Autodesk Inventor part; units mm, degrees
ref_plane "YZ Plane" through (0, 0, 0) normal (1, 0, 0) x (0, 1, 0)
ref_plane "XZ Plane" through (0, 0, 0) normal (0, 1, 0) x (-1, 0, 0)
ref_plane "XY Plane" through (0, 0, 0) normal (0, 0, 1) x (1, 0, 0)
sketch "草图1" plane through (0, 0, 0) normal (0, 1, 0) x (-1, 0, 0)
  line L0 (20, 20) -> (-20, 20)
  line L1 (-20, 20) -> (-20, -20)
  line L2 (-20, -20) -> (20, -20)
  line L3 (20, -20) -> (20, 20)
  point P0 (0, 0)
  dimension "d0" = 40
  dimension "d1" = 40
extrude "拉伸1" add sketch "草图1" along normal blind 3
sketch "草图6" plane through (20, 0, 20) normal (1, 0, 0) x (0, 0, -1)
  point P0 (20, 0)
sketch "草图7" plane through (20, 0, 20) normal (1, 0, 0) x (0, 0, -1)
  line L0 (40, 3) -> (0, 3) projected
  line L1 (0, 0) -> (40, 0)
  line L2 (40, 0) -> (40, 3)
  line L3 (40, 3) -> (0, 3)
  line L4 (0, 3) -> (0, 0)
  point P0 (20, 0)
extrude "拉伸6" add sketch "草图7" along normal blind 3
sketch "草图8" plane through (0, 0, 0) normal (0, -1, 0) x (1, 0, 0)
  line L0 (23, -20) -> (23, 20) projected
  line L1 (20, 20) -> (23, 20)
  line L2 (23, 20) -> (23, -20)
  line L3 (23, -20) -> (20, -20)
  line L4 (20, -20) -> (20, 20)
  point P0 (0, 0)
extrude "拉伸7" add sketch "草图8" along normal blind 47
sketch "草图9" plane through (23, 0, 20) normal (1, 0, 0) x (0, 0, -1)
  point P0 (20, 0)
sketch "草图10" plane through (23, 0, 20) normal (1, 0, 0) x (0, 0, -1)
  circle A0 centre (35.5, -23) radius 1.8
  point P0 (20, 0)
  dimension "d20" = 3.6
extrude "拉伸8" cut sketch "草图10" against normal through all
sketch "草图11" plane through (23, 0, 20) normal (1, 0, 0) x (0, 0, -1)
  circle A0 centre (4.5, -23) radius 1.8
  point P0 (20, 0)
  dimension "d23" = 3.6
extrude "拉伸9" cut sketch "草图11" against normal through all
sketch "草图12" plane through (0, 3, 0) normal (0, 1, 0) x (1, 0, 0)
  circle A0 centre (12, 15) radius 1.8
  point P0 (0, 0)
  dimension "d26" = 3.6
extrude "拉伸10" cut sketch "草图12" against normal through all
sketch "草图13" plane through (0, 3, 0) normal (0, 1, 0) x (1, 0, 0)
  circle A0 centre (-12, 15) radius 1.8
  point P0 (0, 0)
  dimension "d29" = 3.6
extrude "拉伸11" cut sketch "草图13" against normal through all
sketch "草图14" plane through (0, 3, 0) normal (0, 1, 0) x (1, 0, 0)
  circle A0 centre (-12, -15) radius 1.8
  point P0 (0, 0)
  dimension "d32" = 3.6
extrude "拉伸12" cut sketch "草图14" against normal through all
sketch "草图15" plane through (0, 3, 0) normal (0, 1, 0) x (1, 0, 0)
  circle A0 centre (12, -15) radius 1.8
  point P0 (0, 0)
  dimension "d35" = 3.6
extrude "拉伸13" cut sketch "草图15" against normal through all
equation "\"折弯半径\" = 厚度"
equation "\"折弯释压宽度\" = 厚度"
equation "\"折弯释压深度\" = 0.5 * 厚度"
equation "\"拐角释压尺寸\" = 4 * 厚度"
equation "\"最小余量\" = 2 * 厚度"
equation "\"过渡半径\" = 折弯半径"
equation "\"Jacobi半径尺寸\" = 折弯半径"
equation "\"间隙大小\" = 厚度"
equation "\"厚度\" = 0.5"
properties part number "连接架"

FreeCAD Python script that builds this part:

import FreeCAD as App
import Part
import Sketcher
from FreeCAD import Vector

doc = App.newDocument("Part")
body = doc.addObject("PartDesign::Body", "Body")

sketch1 = body.newObject("Sketcher::SketchObject", "Sketch")
sketch1.AttachmentSupport = (doc.getObject("XZ_Plane"), [""])
sketch1.MapMode = "FlatFace"
sketch1.addGeometry([
    Part.LineSegment(Vector(-20, -20, 0), Vector(-20, 20, 0)),
    Part.LineSegment(Vector(-20, 20, 0), Vector(20, 20, 0)),
    Part.LineSegment(Vector(20, 20, 0), Vector(20, -20, 0)),
    Part.LineSegment(Vector(20, -20, 0), Vector(-20, -20, 0)),
], False)
sketch1.addConstraint([
    Sketcher.Constraint("Coincident", 0, 2, 1, 1),
    Sketcher.Constraint("Coincident", 1, 2, 2, 1),
    Sketcher.Constraint("Coincident", 2, 2, 3, 1),
    Sketcher.Constraint("Coincident", 3, 2, 0, 1),
    Sketcher.Constraint("Vertical", 0),
    Sketcher.Constraint("Horizontal", 1),
    Sketcher.Constraint("Vertical", 2),
    Sketcher.Constraint("Horizontal", 3),
    Sketcher.Constraint("Symmetric", 0, 2, 2, 2, -1, 1),
    Sketcher.Constraint("Equal", 3, 0),
    Sketcher.Constraint("DistanceX", 1, 1, 1, 2, 40.0),
])
pad1 = body.newObject("PartDesign::Pad", "Pad")
pad1.Profile = sketch1
pad1.Length = 3
pad1.Reversed = True

sketch2 = body.newObject("Sketcher::SketchObject", "Sketch001")
sketch2.AttachmentSupport = (doc.getObject("YZ_Plane"), [""])
sketch2.MapMode = "FlatFace"
sketch2.AttachmentOffset = App.Placement(Vector(0, 0, 20), App.Rotation())
sketch2.addGeometry([
    Part.LineSegment(Vector(0, -20, 0), Vector(3, -20, 0)),
    Part.LineSegment(Vector(3, -20, 0), Vector(3, 20, 0)),
    Part.LineSegment(Vector(3, 20, 0), Vector(0, 20, 0)),
    Part.LineSegment(Vector(0, 20, 0), Vector(0, -20, 0)),
], False)
sketch2.addConstraint([
    Sketcher.Constraint("Coincident", 0, 2, 1, 1),
    Sketcher.Constraint("Coincident", 1, 2, 2, 1),
    Sketcher.Constraint("Coincident", 2, 2, 3, 1),
    Sketcher.Constraint("Coincident", 3, 2, 0, 1),
    Sketcher.Constraint("Horizontal", 0),
    Sketcher.Constraint("Vertical", 1),
    Sketcher.Constraint("Horizontal", 2),
    Sketcher.Constraint("Vertical", 3),
    Sketcher.Constraint("Symmetric", 2, 2, 3, 2, -1, 1),
    Sketcher.Constraint("DistanceX", 0, 1, 0, 2, 3.0),
    Sketcher.Constraint("DistanceY", 1, 1, 1, 2, 40.0),
])
pad2 = body.newObject("PartDesign::Pad", "Pad001")
pad2.Profile = sketch2
pad2.Length = 3

sketch3 = body.newObject("Sketcher::SketchObject", "Sketch002")
sketch3.AttachmentSupport = (doc.getObject("XZ_Plane"), [""])
sketch3.MapMode = "FlatFace"
sketch3.addGeometry([
    Part.LineSegment(Vector(20, -20, 0), Vector(23, -20, 0)),
    Part.LineSegment(Vector(23, -20, 0), Vector(23, 20, 0)),
    Part.LineSegment(Vector(23, 20, 0), Vector(20, 20, 0)),
    Part.LineSegment(Vector(20, 20, 0), Vector(20, -20, 0)),
], False)
sketch3.addConstraint([
    Sketcher.Constraint("Coincident", 0, 2, 1, 1),
    Sketcher.Constraint("Coincident", 1, 2, 2, 1),
    Sketcher.Constraint("Coincident", 2, 2, 3, 1),
    Sketcher.Constraint("Coincident", 3, 2, 0, 1),
    Sketcher.Constraint("Horizontal", 0),
    Sketcher.Constraint("Vertical", 1),
    Sketcher.Constraint("Horizontal", 2),
    Sketcher.Constraint("Vertical", 3),
    Sketcher.Constraint("DistanceX", 0, 1, 0, 2, 3.0),
    Sketcher.Constraint("DistanceY", 1, 1, 1, 2, 40.0),
    Sketcher.Constraint("DistanceX", -1, 1, 0, 2, 23.0),
    Sketcher.Constraint("DistanceY", 0, 2, -1, 1, 20.0),
])
pad3 = body.newObject("PartDesign::Pad", "Pad002")
pad3.Profile = sketch3
pad3.Length = 47

sketch4 = body.newObject("Sketcher::SketchObject", "Sketch003")
sketch4.AttachmentSupport = (doc.getObject("YZ_Plane"), [""])
sketch4.MapMode = "FlatFace"
sketch4.AttachmentOffset = App.Placement(Vector(0, 0, 23), App.Rotation())
sketch4.addGeometry(Part.Circle(Vector(-23, -15.5, 0), Vector(0, 0, 1), 1.8), False)
sketch4.addConstraint([
    Sketcher.Constraint("Diameter", 0, 3.6),
    Sketcher.Constraint("DistanceX", 0, 3, -1, 1, 23.0),
    Sketcher.Constraint("DistanceY", 0, 3, -1, 1, 15.5),
])
pocket1 = body.newObject("PartDesign::Pocket", "Pocket")
pocket1.Profile = sketch4
pocket1.Type = "ThroughAll"

sketch5 = body.newObject("Sketcher::SketchObject", "Sketch004")
sketch5.AttachmentSupport = (doc.getObject("YZ_Plane"), [""])
sketch5.MapMode = "FlatFace"
sketch5.AttachmentOffset = App.Placement(Vector(0, 0, 23), App.Rotation())
sketch5.addGeometry(Part.Circle(Vector(-23, 15.5, 0), Vector(0, 0, 1), 1.8), False)
sketch5.addConstraint([
    Sketcher.Constraint("Diameter", 0, 3.6),
    Sketcher.Constraint("DistanceX", 0, 3, -1, 1, 23.0),
    Sketcher.Constraint("DistanceY", -1, 1, 0, 3, 15.5),
])
pocket2 = body.newObject("PartDesign::Pocket", "Pocket001")
pocket2.Profile = sketch5
pocket2.Type = "ThroughAll"

sketch6 = body.newObject("Sketcher::SketchObject", "Sketch005")
sketch6.AttachmentSupport = (doc.getObject("XZ_Plane"), [""])
sketch6.MapMode = "FlatFace"
sketch6.AttachmentOffset = App.Placement(Vector(0, 0, -3), App.Rotation())
sketch6.addGeometry(Part.Circle(Vector(12, -15, 0), Vector(0, 0, 1), 1.8), False)
sketch6.addConstraint([
    Sketcher.Constraint("Diameter", 0, 3.6),
    Sketcher.Constraint("DistanceX", -1, 1, 0, 3, 12.0),
    Sketcher.Constraint("DistanceY", 0, 3, -1, 1, 15.0),
])
pocket3 = body.newObject("PartDesign::Pocket", "Pocket002")
pocket3.Profile = sketch6
pocket3.Type = "ThroughAll"
pocket3.Reversed = True

sketch7 = body.newObject("Sketcher::SketchObject", "Sketch006")
sketch7.AttachmentSupport = (doc.getObject("XZ_Plane"), [""])
sketch7.MapMode = "FlatFace"
sketch7.AttachmentOffset = App.Placement(Vector(0, 0, -3), App.Rotation())
sketch7.addGeometry(Part.Circle(Vector(-12, -15, 0), Vector(0, 0, 1), 1.8), False)
sketch7.addConstraint([
    Sketcher.Constraint("Diameter", 0, 3.6),
    Sketcher.Constraint("DistanceX", 0, 3, -1, 1, 12.0),
    Sketcher.Constraint("DistanceY", 0, 3, -1, 1, 15.0),
])
pocket4 = body.newObject("PartDesign::Pocket", "Pocket003")
pocket4.Profile = sketch7
pocket4.Type = "ThroughAll"
pocket4.Reversed = True

sketch8 = body.newObject("Sketcher::SketchObject", "Sketch007")
sketch8.AttachmentSupport = (doc.getObject("XZ_Plane"), [""])
sketch8.MapMode = "FlatFace"
sketch8.AttachmentOffset = App.Placement(Vector(0, 0, -3), App.Rotation())
sketch8.addGeometry(Part.Circle(Vector(-12, 15, 0), Vector(0, 0, 1), 1.8), False)
sketch8.addConstraint([
    Sketcher.Constraint("Diameter", 0, 3.6),
    Sketcher.Constraint("DistanceX", 0, 3, -1, 1, 12.0),
    Sketcher.Constraint("DistanceY", -1, 1, 0, 3, 15.0),
])
pocket5 = body.newObject("PartDesign::Pocket", "Pocket004")
pocket5.Profile = sketch8
pocket5.Type = "ThroughAll"
pocket5.Reversed = True

sketch9 = body.newObject("Sketcher::SketchObject", "Sketch008")
sketch9.AttachmentSupport = (doc.getObject("XZ_Plane"), [""])
sketch9.MapMode = "FlatFace"
sketch9.AttachmentOffset = App.Placement(Vector(0, 0, -3), App.Rotation())
sketch9.addGeometry(Part.Circle(Vector(12, 15, 0), Vector(0, 0, 1), 1.8), False)
sketch9.addConstraint([
    Sketcher.Constraint("Diameter", 0, 3.6),
    Sketcher.Constraint("DistanceX", -1, 1, 0, 3, 12.0),
    Sketcher.Constraint("DistanceY", -1, 1, 0, 3, 15.0),
])
pocket6 = body.newObject("PartDesign::Pocket", "Pocket005")
pocket6.Profile = sketch9
pocket6.Type = "ThroughAll"
pocket6.Reversed = True

doc.recompute()
